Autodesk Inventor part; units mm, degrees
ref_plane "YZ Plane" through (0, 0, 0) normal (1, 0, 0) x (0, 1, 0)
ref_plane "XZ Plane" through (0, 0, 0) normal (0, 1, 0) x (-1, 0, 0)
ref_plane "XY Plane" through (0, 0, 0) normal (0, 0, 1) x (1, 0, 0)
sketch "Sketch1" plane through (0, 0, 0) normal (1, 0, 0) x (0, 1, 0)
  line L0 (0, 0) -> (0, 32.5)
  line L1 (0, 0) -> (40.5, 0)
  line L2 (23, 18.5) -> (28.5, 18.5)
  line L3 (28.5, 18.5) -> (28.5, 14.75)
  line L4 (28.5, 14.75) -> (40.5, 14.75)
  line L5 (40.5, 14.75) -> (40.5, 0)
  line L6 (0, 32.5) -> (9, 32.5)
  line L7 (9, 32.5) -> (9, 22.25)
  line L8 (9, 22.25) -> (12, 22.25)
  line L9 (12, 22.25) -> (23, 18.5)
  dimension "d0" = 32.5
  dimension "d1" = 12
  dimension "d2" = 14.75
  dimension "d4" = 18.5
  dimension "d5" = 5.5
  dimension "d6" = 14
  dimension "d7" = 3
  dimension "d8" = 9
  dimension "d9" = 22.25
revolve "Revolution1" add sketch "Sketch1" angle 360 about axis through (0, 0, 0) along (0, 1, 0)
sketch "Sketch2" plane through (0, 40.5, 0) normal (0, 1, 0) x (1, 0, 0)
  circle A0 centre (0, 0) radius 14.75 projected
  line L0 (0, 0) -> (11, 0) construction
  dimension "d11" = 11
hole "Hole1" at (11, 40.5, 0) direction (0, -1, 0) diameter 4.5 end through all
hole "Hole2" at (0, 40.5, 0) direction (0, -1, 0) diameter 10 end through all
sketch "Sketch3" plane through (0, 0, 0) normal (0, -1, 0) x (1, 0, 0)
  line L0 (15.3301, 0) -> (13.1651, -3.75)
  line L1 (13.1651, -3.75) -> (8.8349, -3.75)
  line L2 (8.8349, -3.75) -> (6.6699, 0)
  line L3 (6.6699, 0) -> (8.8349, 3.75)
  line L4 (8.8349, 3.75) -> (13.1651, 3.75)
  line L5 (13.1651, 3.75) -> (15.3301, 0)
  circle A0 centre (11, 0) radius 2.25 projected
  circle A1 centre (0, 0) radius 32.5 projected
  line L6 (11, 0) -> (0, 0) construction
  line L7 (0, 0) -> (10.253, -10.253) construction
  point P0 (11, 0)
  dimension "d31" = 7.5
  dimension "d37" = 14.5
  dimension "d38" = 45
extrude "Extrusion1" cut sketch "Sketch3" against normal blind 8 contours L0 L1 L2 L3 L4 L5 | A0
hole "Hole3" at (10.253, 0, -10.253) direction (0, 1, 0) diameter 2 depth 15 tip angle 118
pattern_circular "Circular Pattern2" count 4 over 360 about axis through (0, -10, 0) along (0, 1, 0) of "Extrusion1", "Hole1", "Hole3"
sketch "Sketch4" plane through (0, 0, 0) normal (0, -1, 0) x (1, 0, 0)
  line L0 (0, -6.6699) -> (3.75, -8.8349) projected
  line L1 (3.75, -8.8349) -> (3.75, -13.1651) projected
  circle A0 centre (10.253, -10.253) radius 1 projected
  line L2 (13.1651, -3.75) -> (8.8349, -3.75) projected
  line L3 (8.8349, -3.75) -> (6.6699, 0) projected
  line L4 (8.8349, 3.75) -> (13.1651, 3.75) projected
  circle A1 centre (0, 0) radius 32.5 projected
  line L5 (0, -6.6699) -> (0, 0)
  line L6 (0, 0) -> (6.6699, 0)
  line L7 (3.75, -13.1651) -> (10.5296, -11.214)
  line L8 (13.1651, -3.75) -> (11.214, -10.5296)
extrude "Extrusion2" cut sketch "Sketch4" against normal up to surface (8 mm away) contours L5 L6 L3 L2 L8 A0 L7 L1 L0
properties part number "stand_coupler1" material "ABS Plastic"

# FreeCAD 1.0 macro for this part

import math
import FreeCAD as App
import Part
import Sketcher
Q = App.Units.Quantity

doc = App.newDocument("Part")
params = doc.addObject("Spreadsheet::Sheet", "Params")
for row, (alias, value) in enumerate([
    ("sketch1_width", "12 mm"),
    ("sketch1_width2", "3 mm"),
    ("sketch1_width3", "9 mm"),
    ("sketch1_width4", "5.5 mm"),
    ("sketch1_height", "32.5 mm"),
    ("revolution_angle", "360 deg"),
    ("sketch2_diameter", "4.5 mm"),
    ("hole_diameter", "4.5 mm"),
    ("sketch3_diameter", "10 mm"),
    ("hole2_diameter", "10 mm"),
    ("pocket1_length", "8 mm"),
    ("sketch5_diameter", "2 mm"),
    ("hole3_diameter", "2 mm"),
    ("hole3_depth", "15 mm"),
    ("sketch6_radius", "1 mm"),
    ("sketch6_width", "6.67 mm"),
    ("sketch6_length", "4.33 mm"),
    ("pocket2_length", "8 mm"),
], start=1):
    params.set(f"A{row}", alias)
    params.set(f"B{row}", "=" + value)
    params.setAlias(f"B{row}", alias)

body = doc.addObject("PartDesign::Body", "Body")

# Sketch on YZ plane
sketch1 = body.newObject("Sketcher::SketchObject", "Sketch")
sketch1.AttachmentSupport = (doc.getObject("YZ_Plane"), [""])
sketch1.MapMode = "FlatFace"
sketch1.addGeometry(Part.LineSegment(App.Vector(0, 32.5, 0), App.Vector(0, 0, 0)), False)
sketch1.addGeometry(Part.LineSegment(App.Vector(0, 0, 0), App.Vector(40.5, 0, 0)), False)
sketch1.addGeometry(Part.LineSegment(App.Vector(40.5, 0, 0), App.Vector(40.5, 14.8, 0)), False)
sketch1.addGeometry(Part.LineSegment(App.Vector(40.5, 14.8, 0), App.Vector(28.5, 14.8, 0)), False)
sketch1.addGeometry(Part.LineSegment(App.Vector(28.5, 14.8, 0), App.Vector(28.5, 18.5, 0)), False)
sketch1.addGeometry(Part.LineSegment(App.Vector(28.5, 18.5, 0), App.Vector(23, 18.5, 0)), False)
sketch1.addGeometry(Part.LineSegment(App.Vector(23, 18.5, 0), App.Vector(12, 22.2, 0)), False)
sketch1.addGeometry(Part.LineSegment(App.Vector(12, 22.2, 0), App.Vector(9, 22.2, 0)), False)
sketch1.addGeometry(Part.LineSegment(App.Vector(9, 22.2, 0), App.Vector(9, 32.5, 0)), False)
sketch1.addGeometry(Part.LineSegment(App.Vector(9, 32.5, 0), App.Vector(0, 32.5, 0)), False)
sketch1.addConstraint(Sketcher.Constraint("Coincident", 0, 2, 1, 1))
sketch1.addConstraint(Sketcher.Constraint("Coincident", 1, 2, 2, 1))
sketch1.addConstraint(Sketcher.Constraint("Coincident", 2, 2, 3, 1))
sketch1.addConstraint(Sketcher.Constraint("Coincident", 3, 2, 4, 1))
sketch1.addConstraint(Sketcher.Constraint("Coincident", 4, 2, 5, 1))
sketch1.addConstraint(Sketcher.Constraint("Coincident", 5, 2, 6, 1))
sketch1.addConstraint(Sketcher.Constraint("Coincident", 6, 2, 7, 1))
sketch1.addConstraint(Sketcher.Constraint("Coincident", 7, 2, 8, 1))
sketch1.addConstraint(Sketcher.Constraint("Coincident", 8, 2, 9, 1))
sketch1.addConstraint(Sketcher.Constraint("Coincident", 9, 2, 0, 1))
sketch1.addConstraint(Sketcher.Constraint("Vertical", 0))
sketch1.addConstraint(Sketcher.Constraint("Horizontal", 1))
sketch1.addConstraint(Sketcher.Constraint("Vertical", 2))
sketch1.addConstraint(Sketcher.Constraint("Horizontal", 3))
sketch1.addConstraint(Sketcher.Constraint("Vertical", 4))
sketch1.addConstraint(Sketcher.Constraint("Horizontal", 5))
sketch1.addConstraint(Sketcher.Constraint("Horizontal", 7))
sketch1.addConstraint(Sketcher.Constraint("Vertical", 8))
sketch1.addConstraint(Sketcher.Constraint("Horizontal", 9))
sketch1.addConstraint(Sketcher.Constraint("Coincident", 0, 2, -1, 1))
sketch1.addConstraint(Sketcher.Constraint("DistanceX", 3, 2, 3, 1, 12.0))
sketch1.addConstraint(Sketcher.Constraint("DistanceX", 7, 2, 7, 1, 3.0))
sketch1.addConstraint(Sketcher.Constraint("DistanceX", 9, 2, 9, 1, 9.0))
sketch1.addConstraint(Sketcher.Constraint("DistanceX", 5, 2, 5, 1, 5.5))
sketch1.addConstraint(Sketcher.Constraint("DistanceY", 0, 2, 0, 1, 32.5))
sketch1.addConstraint(Sketcher.Constraint("DistanceX", 7, 2, 5, 2, 14.0))
sketch1.addConstraint(Sketcher.Constraint("DistanceY", 5, 2, 8, 2, 14.0))
sketch1.addConstraint(Sketcher.Constraint("DistanceY", 2, 1, 2, 2, 14.75))
sketch1.addConstraint(Sketcher.Constraint("DistanceY", -1, 1, 6, 2, 22.25))
sketch1.setExpression("Constraints[20]", "Params.sketch1_width")
sketch1.setExpression("Constraints[21]", "Params.sketch1_width2")
sketch1.setExpression("Constraints[22]", "Params.sketch1_width3")
sketch1.setExpression("Constraints[23]", "Params.sketch1_width4")
sketch1.setExpression("Constraints[24]", "Params.sketch1_height")
revolution = body.newObject("PartDesign::Revolution", "Revolution")
revolution.Profile = sketch1
revolution.ReferenceAxis = (sketch1, ["H_Axis"])
revolution.setExpression("Angle", "Params.revolution_angle")

# Sketch on XZ plane
sketch2 = body.newObject("Sketcher::SketchObject", "Sketch001")
sketch2.AttachmentSupport = (doc.getObject("XZ_Plane"), [""])
sketch2.MapMode = "FlatFace"
sketch2.AttachmentOffset = App.Placement(App.Vector(0, 0, -40.5), App.Rotation())
sketch2.addGeometry(Part.Circle(App.Vector(11, 0, 0), App.Vector(0, 0, 1), 2.2), False)
sketch2.addConstraint(Sketcher.Constraint("PointOnObject", 0, 3, -1))
sketch2.addConstraint(Sketcher.Constraint("Diameter", 0, 4.5))
sketch2.addConstraint(Sketcher.Constraint("DistanceX", -1, 1, 0, 3, 11.0))
sketch2.setExpression("Constraints[1]", "Params.sketch2_diameter")
doc.recompute()
hole = body.newObject("PartDesign::Hole", "Hole")
hole.Profile = sketch2
hole.ThreadType = "None"
hole.setExpression("Diameter", "Params.hole_diameter")
hole.DepthType = "ThroughAll"
hole.Reversed = True

# Sketch on XZ plane
sketch3 = body.newObject("Sketcher::SketchObject", "Sketch002")
sketch3.AttachmentSupport = (doc.getObject("XZ_Plane"), [""])
sketch3.MapMode = "FlatFace"
sketch3.AttachmentOffset = App.Placement(App.Vector(0, 0, -40.5), App.Rotation())
sketch3.addGeometry(Part.Circle(App.Vector(0, 0, 0), App.Vector(0, 0, 1), 5), False)
sketch3.addConstraint(Sketcher.Constraint("Coincident", 0, 3, -1, 1))
sketch3.addConstraint(Sketcher.Constraint("Diameter", 0, 10.0))
sketch3.setExpression("Constraints[1]", "Params.sketch3_diameter")
doc.recompute()
hole2 = body.newObject("PartDesign::Hole", "Hole001")
hole2.Profile = sketch3
hole2.ThreadType = "None"
hole2.setExpression("Diameter", "Params.hole2_diameter")
hole2.DepthType = "ThroughAll"
hole2.Reversed = True

# Sketch on XZ plane
sketch4 = body.newObject("Sketcher::SketchObject", "Sketch003")
sketch4.AttachmentSupport = (doc.getObject("XZ_Plane"), [""])
sketch4.MapMode = "FlatFace"
sketch4.addGeometry(Part.LineSegment(App.Vector(13.2, -3.8, 0), App.Vector(15.3, 0, 0)), False)
sketch4.addGeometry(Part.LineSegment(App.Vector(15.3, 0, 0), App.Vector(13.2, 3.8, 0)), False)
sketch4.addGeometry(Part.LineSegment(App.Vector(13.2, 3.8, 0), App.Vector(8.8, 3.8, 0)), False)
sketch4.addGeometry(Part.LineSegment(App.Vector(8.8, 3.8, 0), App.Vector(6.7, 0, 0)), False)
sketch4.addGeometry(Part.LineSegment(App.Vector(6.7, 0, 0), App.Vector(8.8, -3.8, 0)), False)
sketch4.addGeometry(Part.LineSegment(App.Vector(8.8, -3.8, 0), App.Vector(13.2, -3.8, 0)), False)
sketch4.addConstraint(Sketcher.Constraint("Coincident", 0, 2, 1, 1))
sketch4.addConstraint(Sketcher.Constraint("Coincident", 1, 2, 2, 1))
sketch4.addConstraint(Sketcher.Constraint("Coincident", 2, 2, 3, 1))
sketch4.addConstraint(Sketcher.Constraint("Coincident", 3, 2, 4, 1))
sketch4.addConstraint(Sketcher.Constraint("Coincident", 4, 2, 5, 1))
sketch4.addConstraint(Sketcher.Constraint("Coincident", 5, 2, 0, 1))
sketch4.addConstraint(Sketcher.Constraint("Horizontal", 2))
sketch4.addConstraint(Sketcher.Constraint("Horizontal", 5))
sketch4.addConstraint(Sketcher.Constraint("Symmetric", 2, 2, 4, 2, -1))
sketch4.addConstraint(Sketcher.Constraint("PointOnObject", 0, 2, -1))
sketch4.addConstraint(Sketcher.Constraint("PointOnObject", 3, 2, -1))
sketch4.addConstraint(Sketcher.Constraint("Parallel", 0, 3))
sketch4.addConstraint(Sketcher.Constraint("Parallel", 1, 4))
sketch4.addConstraint(Sketcher.Constraint("DistanceY", 4, 2, 2, 2, 7.5))
sketch4.addConstraint(Sketcher.Constraint("Angle", 0, Q("60.0007 deg")))
sketch4.addConstraint(Sketcher.Constraint("DistanceX", -1, 1, 0, 2, 15.33))
sketch4.addConstraint(Sketcher.Constraint("DistanceX", -1, 1, 3, 2, 6.67))
pocket1 = body.newObject("PartDesign::Pocket", "Pocket")
pocket1.Profile = sketch4
pocket1.setExpression("Length", "Params.pocket1_length")

# Sketch on XZ plane
sketch5 = body.newObject("Sketcher::SketchObject", "Sketch004")
sketch5.AttachmentSupport = (doc.getObject("XZ_Plane"), [""])
sketch5.MapMode = "FlatFace"
sketch5.addGeometry(Part.Circle(App.Vector(10.3, -10.3, 0), App.Vector(0, 0, 1), 1), False)
sketch5.addConstraint(Sketcher.Constraint("Diameter", 0, 2.0))
sketch5.addConstraint(Sketcher.Constraint("DistanceX", -1, 1, 0, 3, 10.253))
sketch5.addConstraint(Sketcher.Constraint("DistanceY", 0, 3, -1, 1, 10.253))
sketch5.setExpression("Constraints[0]", "Params.sketch5_diameter")
doc.recompute()
hole3 = body.newObject("PartDesign::Hole", "Hole002")
hole3.Profile = sketch5
hole3.ThreadType = "None"
hole3.setExpression("Diameter", "Params.hole3_diameter")
hole3.DepthType = "Dimension"
hole3.setExpression("Depth", "Params.hole3_depth")
hole3.DrillPoint = "Angled"
hole3.DrillPointAngle = 118
doc.recompute()

polarpattern = body.newObject("PartDesign::PolarPattern", "PolarPattern")
polarpattern.Originals = [pocket1, hole, hole3]
polarpattern.Axis = (doc.getObject("Y_Axis"), [""])
polarpattern.Angle = 360
polarpattern.Occurrences = 4
body.Tip = polarpattern

# Sketch on XZ plane
sketch6 = body.newObject("Sketcher::SketchObject", "Sketch005")
sketch6.AttachmentSupport = (doc.getObject("XZ_Plane"), [""])
sketch6.MapMode = "FlatFace"
sketch6.addGeometry(Part.LineSegment(App.Vector(0, 0, 0), App.Vector(0, -6.7, 0)), False)
sketch6.addGeometry(Part.LineSegment(App.Vector(0, -6.7, 0), App.Vector(3.8, -8.8, 0)), False)
sketch6.addGeometry(Part.LineSegment(App.Vector(3.8, -8.8, 0), App.Vector(3.8, -13.2, 0)), False)
sketch6.addGeometry(Part.LineSegment(App.Vector(3.8, -13.2, 0), App.Vector(10.5, -11.2, 0)), False)
sketch6.addGeometry(Part.ArcOfCircle(Part.Circle(App.Vector(10.3, -10.3, 0), App.Vector(0, 0, 1), 1), math.radians(-16), math.radians(286)), False)
sketch6.addGeometry(Part.LineSegment(App.Vector(11.2, -10.5, 0), App.Vector(13.2, -3.8, 0)), False)
sketch6.addGeometry(Part.LineSegment(App.Vector(13.2, -3.8, 0), App.Vector(8.8, -3.8, 0)), False)
sketch6.addGeometry(Part.LineSegment(App.Vector(8.8, -3.8, 0), App.Vector(6.7, 0, 0)), False)
sketch6.addGeometry(Part.LineSegment(App.Vector(6.7, 0, 0), App.Vector(0, 0, 0)), False)
sketch6.addConstraint(Sketcher.Constraint("Coincident", 0, 2, 1, 1))
sketch6.addConstraint(Sketcher.Constraint("Coincident", 1, 2, 2, 1))
sketch6.addConstraint(Sketcher.Constraint("Coincident", 2, 2, 3, 1))
sketch6.addConstraint(Sketcher.Constraint("Tangent", 3, 2, 4, 2))
sketch6.addConstraint(Sketcher.Constraint("Tangent", 4, 1, 5, 1))
sketch6.addConstraint(Sketcher.Constraint("Coincident", 5, 2, 6, 1))
sketch6.addConstraint(Sketcher.Constraint("Coincident", 6, 2, 7, 1))
sketch6.addConstraint(Sketcher.Constraint("Coincident", 7, 2, 8, 1))
sketch6.addConstraint(Sketcher.Constraint("Coincident", 8, 2, 0, 1))
sketch6.addConstraint(Sketcher.Constraint("Vertical", 0))
sketch6.addConstraint(Sketcher.Constraint("Vertical", 2))
sketch6.addConstraint(Sketcher.Constraint("Horizontal", 6))
sketch6.addConstraint(Sketcher.Constraint("Horizontal", 8))
sketch6.addConstraint(Sketcher.Constraint("Coincident", 8, 2, -1, 1))
sketch6.addConstraint(Sketcher.Constraint("Equal", 8, 0))
sketch6.addConstraint(Sketcher.Constraint("Equal", 6, 2))
sketch6.addConstraint(Sketcher.Constraint("Equal", 3, 5))
sketch6.addConstraint(Sketcher.Constraint("Equal", 1, 7))
sketch6.addConstraint(Sketcher.Constraint("Radius", 4, 1.0))
sketch6.addConstraint(Sketcher.Constraint("Angle", 1, Q("-29.9993 deg")))
sketch6.addConstraint(Sketcher.Constraint("Angle", 7, Q("119.9993 deg")))
sketch6.addConstraint(Sketcher.Constraint("DistanceX", 8, 2, 8, 1, 6.67))
sketch6.addConstraint(Sketcher.Constraint("Distance", 1, 4.33))
sketch6.addConstraint(Sketcher.Constraint("DistanceX", 6, 2, 6, 1, 4.3302))
sketch6.addConstraint(Sketcher.Constraint("DistanceX", -1, 1, 4, 3, 10.253))
sketch6.setExpression("Constraints[18]", "Params.sketch6_radius")
sketch6.setExpression("Constraints[21]", "Params.sketch6_width")
sketch6.setExpression("Constraints[22]", "Params.sketch6_length")
pocket2 = body.newObject("PartDesign::Pocket", "Pocket001")
pocket2.Profile = sketch6
pocket2.setExpression("Length", "Params.pocket2_length")

doc.recompute()
